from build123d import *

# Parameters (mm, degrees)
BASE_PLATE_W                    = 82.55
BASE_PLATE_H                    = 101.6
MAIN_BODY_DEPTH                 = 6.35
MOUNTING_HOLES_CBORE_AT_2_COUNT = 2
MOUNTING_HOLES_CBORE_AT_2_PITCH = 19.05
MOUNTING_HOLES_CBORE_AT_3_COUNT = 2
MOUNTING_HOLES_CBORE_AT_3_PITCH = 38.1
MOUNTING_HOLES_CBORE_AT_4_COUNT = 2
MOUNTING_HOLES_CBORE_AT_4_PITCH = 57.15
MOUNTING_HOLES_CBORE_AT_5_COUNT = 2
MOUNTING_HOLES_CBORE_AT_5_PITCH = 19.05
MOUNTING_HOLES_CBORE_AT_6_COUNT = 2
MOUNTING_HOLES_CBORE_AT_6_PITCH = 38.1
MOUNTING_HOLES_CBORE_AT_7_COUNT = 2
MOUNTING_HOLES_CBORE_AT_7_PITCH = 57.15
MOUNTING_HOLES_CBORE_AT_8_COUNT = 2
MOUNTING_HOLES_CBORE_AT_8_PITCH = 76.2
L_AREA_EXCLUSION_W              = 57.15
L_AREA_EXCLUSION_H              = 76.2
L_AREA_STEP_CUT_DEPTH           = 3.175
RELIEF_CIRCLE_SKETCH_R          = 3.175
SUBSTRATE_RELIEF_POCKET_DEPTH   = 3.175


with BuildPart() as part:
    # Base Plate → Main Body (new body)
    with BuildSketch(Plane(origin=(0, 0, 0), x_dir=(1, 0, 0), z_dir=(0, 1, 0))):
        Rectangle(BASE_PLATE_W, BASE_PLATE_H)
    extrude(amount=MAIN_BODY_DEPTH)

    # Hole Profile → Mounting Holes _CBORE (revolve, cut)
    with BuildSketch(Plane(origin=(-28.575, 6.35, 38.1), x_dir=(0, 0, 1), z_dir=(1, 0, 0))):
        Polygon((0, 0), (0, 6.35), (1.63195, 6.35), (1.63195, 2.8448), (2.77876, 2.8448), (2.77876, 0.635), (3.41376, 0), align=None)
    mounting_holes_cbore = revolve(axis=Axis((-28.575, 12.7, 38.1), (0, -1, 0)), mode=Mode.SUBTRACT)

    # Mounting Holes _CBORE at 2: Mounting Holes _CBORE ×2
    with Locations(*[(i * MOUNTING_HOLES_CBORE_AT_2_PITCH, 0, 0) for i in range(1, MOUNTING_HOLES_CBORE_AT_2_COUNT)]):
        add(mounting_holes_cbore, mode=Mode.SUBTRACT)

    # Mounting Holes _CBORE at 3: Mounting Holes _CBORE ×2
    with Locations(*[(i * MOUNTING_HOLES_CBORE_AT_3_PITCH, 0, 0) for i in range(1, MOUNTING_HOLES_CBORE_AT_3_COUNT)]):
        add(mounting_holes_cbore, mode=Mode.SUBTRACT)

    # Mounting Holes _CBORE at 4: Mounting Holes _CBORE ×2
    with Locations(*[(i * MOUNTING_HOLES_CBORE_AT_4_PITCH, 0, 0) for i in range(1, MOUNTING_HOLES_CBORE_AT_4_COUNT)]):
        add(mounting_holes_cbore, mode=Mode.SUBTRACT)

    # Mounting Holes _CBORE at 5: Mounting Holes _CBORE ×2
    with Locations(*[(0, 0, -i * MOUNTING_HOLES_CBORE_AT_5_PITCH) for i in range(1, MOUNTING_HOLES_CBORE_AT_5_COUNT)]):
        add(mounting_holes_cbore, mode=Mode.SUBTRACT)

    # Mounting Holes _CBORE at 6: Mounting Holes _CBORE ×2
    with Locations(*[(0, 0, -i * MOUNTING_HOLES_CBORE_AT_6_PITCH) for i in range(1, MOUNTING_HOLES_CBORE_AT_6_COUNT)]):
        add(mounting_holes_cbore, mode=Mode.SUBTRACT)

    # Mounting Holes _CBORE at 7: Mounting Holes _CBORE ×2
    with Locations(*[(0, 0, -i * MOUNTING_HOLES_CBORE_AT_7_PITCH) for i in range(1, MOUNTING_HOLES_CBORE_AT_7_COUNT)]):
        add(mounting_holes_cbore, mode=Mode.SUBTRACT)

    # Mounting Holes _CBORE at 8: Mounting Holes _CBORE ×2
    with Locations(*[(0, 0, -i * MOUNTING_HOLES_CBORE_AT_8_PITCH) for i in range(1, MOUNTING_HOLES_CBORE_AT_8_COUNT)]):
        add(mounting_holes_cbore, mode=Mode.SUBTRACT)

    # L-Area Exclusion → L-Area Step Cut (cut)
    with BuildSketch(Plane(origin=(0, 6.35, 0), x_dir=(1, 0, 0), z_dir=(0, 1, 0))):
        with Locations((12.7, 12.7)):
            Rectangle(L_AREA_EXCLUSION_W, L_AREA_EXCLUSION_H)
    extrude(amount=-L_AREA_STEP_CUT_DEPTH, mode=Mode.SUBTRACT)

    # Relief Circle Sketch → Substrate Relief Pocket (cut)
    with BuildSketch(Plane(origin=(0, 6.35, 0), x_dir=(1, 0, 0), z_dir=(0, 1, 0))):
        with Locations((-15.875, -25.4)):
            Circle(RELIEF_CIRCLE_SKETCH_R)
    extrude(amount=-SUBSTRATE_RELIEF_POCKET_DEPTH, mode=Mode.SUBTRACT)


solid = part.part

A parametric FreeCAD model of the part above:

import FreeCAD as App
import Part
import Sketcher
from FreeCAD import Vector
Q = App.Units.Quantity


def add_polygon(sketch, points):
    """Adds a closed chain of lines whose ends are joined by coincident constraints."""
    first, n = sketch.GeometryCount, len(points)
    for a, b in zip(points, points[1:] + points[:1]):
        sketch.addGeometry(Part.LineSegment(App.Vector(*a, 0), App.Vector(*b, 0)), False)
    for i in range(n):
        sketch.addConstraint(Sketcher.Constraint("Coincident", first + i, 2, first + (i + 1) % n, 1))

doc = App.newDocument("Part")
body = doc.addObject("PartDesign::Body", "Body")

sketch1 = doc.addObject("Sketcher::SketchObject", "Sketch")
body.addObject(sketch1)
sketch1.AttachmentSupport = (doc.XZ_Plane, [""])
sketch1.MapMode = "FlatFace"
add_polygon(sketch1, [(-41.275, -50.8), (-41.275, 50.8), (41.275, 50.8), (41.275, -50.8)])
sketch1.addConstraint(Sketcher.Constraint("Vertical", 0))
sketch1.addConstraint(Sketcher.Constraint("Horizontal", 1))
sketch1.addConstraint(Sketcher.Constraint("Vertical", 2))
sketch1.addConstraint(Sketcher.Constraint("Horizontal", 3))
sketch1.addConstraint(Sketcher.Constraint("Symmetric", 0, 2, 2, 2, -1, 1))
sketch1.addConstraint(Sketcher.Constraint("DistanceY", 0, 1, 0, 2, Q("4 in")))
sketch1.addConstraint(Sketcher.Constraint("DistanceX", 1, 1, 1, 2, Q("3.25 in")))
pad1 = doc.addObject("PartDesign::Pad", "Pad")
body.addObject(pad1)
pad1.Profile = sketch1
pad1.Length = Q("0.25 in")
pad1.Reversed = True

sketch2 = doc.addObject("Sketcher::SketchObject", "Sketch001")
body.addObject(sketch2)
sketch2.AttachmentSupport = (doc.YZ_Plane, [""])
sketch2.MapMode = "FlatFace"
sketch2.AttachmentOffset = App.Placement(Vector(0, 0, -1.125 * 25.4), App.Rotation())
add_polygon(sketch2, [(0, 38.1), (6.35, 38.1), (6.35, 41.51376), (5.715, 40.87876), (3.5052, 40.87876), (3.5052, 39.73195), (0, 39.73195)])
sketch2.addGeometry(Part.LineSegment(Vector(6.35, 38.1, 0), Vector(0, 38.1, 0)), True)
sketch2.addConstraint(Sketcher.Constraint("Horizontal", 0))
sketch2.addConstraint(Sketcher.Constraint("Vertical", 1))
sketch2.addConstraint(Sketcher.Constraint("Horizontal", 3))
sketch2.addConstraint(Sketcher.Constraint("Vertical", 4))
sketch2.addConstraint(Sketcher.Constraint("Horizontal", 5))
sketch2.addConstraint(Sketcher.Constraint("Vertical", 6))
sketch2.addConstraint(Sketcher.Constraint("Horizontal", 7))
sketch2.addConstraint(Sketcher.Constraint("Coincident", 7, 1, 0, 2))
sketch2.addConstraint(Sketcher.Constraint("PointOnObject", 5, 2, -2))
sketch2.addConstraint(Sketcher.Constraint("PointOnObject", 7, 2, -2))
sketch2.addConstraint(Sketcher.Constraint("Angle", 2, Q("-135 deg")))
sketch2.addConstraint(Sketcher.Constraint("DistanceX", 0, 1, 0, 2, Q("0.25 in")))
sketch2.addConstraint(Sketcher.Constraint("DistanceY", -1, 1, 0, 2, Q("1.5 in")))
sketch2.addConstraint(Sketcher.Constraint("DistanceX", 3, 2, 3, 1, Q("0.087 in")))
sketch2.addConstraint(Sketcher.Constraint("DistanceX", 5, 2, 5, 1, Q("0.138 in")))
sketch2.addConstraint(Sketcher.Constraint("DistanceY", 1, 1, 1, 2, Q("0.1344 in")))
sketch2.addConstraint(Sketcher.Constraint("DistanceY", 4, 2, 4, 1, 1.14681))
groove = doc.addObject("PartDesign::Groove", "Groove")
body.addObject(groove)
groove.Profile = sketch2
groove.ReferenceAxis = (sketch2, ["Axis0"])
groove.Angle = 360
doc.recompute()

linearpattern = doc.addObject("PartDesign::LinearPattern", "LinearPattern")
body.addObject(linearpattern)
linearpattern.Originals = [groove]
linearpattern.Direction = (doc.X_Axis, [""])
linearpattern.Mode = "offset"
linearpattern.Offset = Q("0.75 in")
linearpattern.Occurrences = 2
body.Tip = linearpattern
doc.recompute()

linearpattern2 = doc.addObject("PartDesign::LinearPattern", "LinearPattern001")
body.addObject(linearpattern2)
linearpattern2.Originals = [groove]
linearpattern2.Direction = (doc.X_Axis, [""])
linearpattern2.Mode = "offset"
linearpattern2.Offset = Q("1.5 in")
linearpattern2.Occurrences = 2
body.Tip = linearpattern2
doc.recompute()

linearpattern3 = doc.addObject("PartDesign::LinearPattern", "LinearPattern002")
body.addObject(linearpattern3)
linearpattern3.Originals = [groove]
linearpattern3.Direction = (doc.X_Axis, [""])
linearpattern3.Mode = "offset"
linearpattern3.Offset = Q("2.25 in")
linearpattern3.Occurrences = 2
body.Tip = linearpattern3
doc.recompute()

linearpattern4 = doc.addObject("PartDesign::LinearPattern", "LinearPattern003")
body.addObject(linearpattern4)
linearpattern4.Originals = [groove]
linearpattern4.Direction = (doc.Z_Axis, [""])
linearpattern4.Mode = "offset"
linearpattern4.Offset = Q("0.75 in")
linearpattern4.Occurrences = 2
linearpattern4.Reversed = True
body.Tip = linearpattern4
doc.recompute()

linearpattern5 = doc.addObject("PartDesign::LinearPattern", "LinearPattern004")
body.addObject(linearpattern5)
linearpattern5.Originals = [groove]
linearpattern5.Direction = (doc.Z_Axis, [""])
linearpattern5.Mode = "offset"
linearpattern5.Offset = Q("1.5 in")
linearpattern5.Occurrences = 2
linearpattern5.Reversed = True
body.Tip = linearpattern5
doc.recompute()

linearpattern6 = doc.addObject("PartDesign::LinearPattern", "LinearPattern005")
body.addObject(linearpattern6)
linearpattern6.Originals = [groove]
linearpattern6.Direction = (doc.Z_Axis, [""])
linearpattern6.Mode = "offset"
linearpattern6.Offset = Q("2.25 in")
linearpattern6.Occurrences = 2
linearpattern6.Reversed = True
body.Tip = linearpattern6
doc.recompute()

linearpattern7 = doc.addObject("PartDesign::LinearPattern", "LinearPattern006")
body.addObject(linearpattern7)
linearpattern7.Originals = [groove]
linearpattern7.Direction = (doc.Z_Axis, [""])
linearpattern7.Mode = "offset"
linearpattern7.Offset = Q("3 in")
linearpattern7.Occurrences = 2
linearpattern7.Reversed = True
body.Tip = linearpattern7

sketch3 = doc.addObject("Sketcher::SketchObject", "Sketch002")
body.addObject(sketch3)
sketch3.AttachmentSupport = (doc.XZ_Plane, [""])
sketch3.MapMode = "FlatFace"
sketch3.AttachmentOffset = App.Placement(Vector(0, 0, -0.25 * 25.4), App.Rotation())
add_polygon(sketch3, [(-15.875, -50.8), (-15.875, 25.4), (41.275, 25.4), (41.275, -50.8)])
sketch3.addConstraint(Sketcher.Constraint("Vertical", 0))
sketch3.addConstraint(Sketcher.Constraint("Horizontal", 1))
sketch3.addConstraint(Sketcher.Constraint("Vertical", 2))
sketch3.addConstraint(Sketcher.Constraint("Horizontal", 3))
sketch3.addConstraint(Sketcher.Constraint("DistanceY", 0, 1, 0, 2, Q("3 in")))
sketch3.addConstraint(Sketcher.Constraint("DistanceY", -1, 1, 0, 2, Q("1 in")))
sketch3.addConstraint(Sketcher.Constraint("DistanceX", 1, 1, 1, 2, Q("2.25 in")))
sketch3.addConstraint(Sketcher.Constraint("DistanceX", 0, 2, -1, 1, Q("0.625 in")))
pocket1 = doc.addObject("PartDesign::Pocket", "Pocket")
body.addObject(pocket1)
pocket1.Profile = sketch3
pocket1.Length = Q("0.125 in")
pocket1.Reversed = True

sketch4 = doc.addObject("Sketcher::SketchObject", "Sketch003")
body.addObject(sketch4)
sketch4.AttachmentSupport = (doc.XZ_Plane, [""])
sketch4.MapMode = "FlatFace"
sketch4.AttachmentOffset = App.Placement(Vector(0, 0, -0.25 * 25.4), App.Rotation())
sketch4.addGeometry(Part.Circle(Vector(-15.875, 25.4, 0), Vector(0, 0, 1), 3.175), False)
sketch4.addConstraint(Sketcher.Constraint("Diameter", 0, Q("0.25 in")))
sketch4.addConstraint(Sketcher.Constraint("DistanceY", -1, 1, 0, 3, Q("1 in")))
sketch4.addConstraint(Sketcher.Constraint("DistanceX", 0, 3, -1, 1, Q("0.625 in")))
pocket2 = doc.addObject("PartDesign::Pocket", "Pocket001")
body.addObject(pocket2)
pocket2.Profile = sketch4
pocket2.Length = Q("0.125 in")
pocket2.Reversed = True

doc.recompute()
